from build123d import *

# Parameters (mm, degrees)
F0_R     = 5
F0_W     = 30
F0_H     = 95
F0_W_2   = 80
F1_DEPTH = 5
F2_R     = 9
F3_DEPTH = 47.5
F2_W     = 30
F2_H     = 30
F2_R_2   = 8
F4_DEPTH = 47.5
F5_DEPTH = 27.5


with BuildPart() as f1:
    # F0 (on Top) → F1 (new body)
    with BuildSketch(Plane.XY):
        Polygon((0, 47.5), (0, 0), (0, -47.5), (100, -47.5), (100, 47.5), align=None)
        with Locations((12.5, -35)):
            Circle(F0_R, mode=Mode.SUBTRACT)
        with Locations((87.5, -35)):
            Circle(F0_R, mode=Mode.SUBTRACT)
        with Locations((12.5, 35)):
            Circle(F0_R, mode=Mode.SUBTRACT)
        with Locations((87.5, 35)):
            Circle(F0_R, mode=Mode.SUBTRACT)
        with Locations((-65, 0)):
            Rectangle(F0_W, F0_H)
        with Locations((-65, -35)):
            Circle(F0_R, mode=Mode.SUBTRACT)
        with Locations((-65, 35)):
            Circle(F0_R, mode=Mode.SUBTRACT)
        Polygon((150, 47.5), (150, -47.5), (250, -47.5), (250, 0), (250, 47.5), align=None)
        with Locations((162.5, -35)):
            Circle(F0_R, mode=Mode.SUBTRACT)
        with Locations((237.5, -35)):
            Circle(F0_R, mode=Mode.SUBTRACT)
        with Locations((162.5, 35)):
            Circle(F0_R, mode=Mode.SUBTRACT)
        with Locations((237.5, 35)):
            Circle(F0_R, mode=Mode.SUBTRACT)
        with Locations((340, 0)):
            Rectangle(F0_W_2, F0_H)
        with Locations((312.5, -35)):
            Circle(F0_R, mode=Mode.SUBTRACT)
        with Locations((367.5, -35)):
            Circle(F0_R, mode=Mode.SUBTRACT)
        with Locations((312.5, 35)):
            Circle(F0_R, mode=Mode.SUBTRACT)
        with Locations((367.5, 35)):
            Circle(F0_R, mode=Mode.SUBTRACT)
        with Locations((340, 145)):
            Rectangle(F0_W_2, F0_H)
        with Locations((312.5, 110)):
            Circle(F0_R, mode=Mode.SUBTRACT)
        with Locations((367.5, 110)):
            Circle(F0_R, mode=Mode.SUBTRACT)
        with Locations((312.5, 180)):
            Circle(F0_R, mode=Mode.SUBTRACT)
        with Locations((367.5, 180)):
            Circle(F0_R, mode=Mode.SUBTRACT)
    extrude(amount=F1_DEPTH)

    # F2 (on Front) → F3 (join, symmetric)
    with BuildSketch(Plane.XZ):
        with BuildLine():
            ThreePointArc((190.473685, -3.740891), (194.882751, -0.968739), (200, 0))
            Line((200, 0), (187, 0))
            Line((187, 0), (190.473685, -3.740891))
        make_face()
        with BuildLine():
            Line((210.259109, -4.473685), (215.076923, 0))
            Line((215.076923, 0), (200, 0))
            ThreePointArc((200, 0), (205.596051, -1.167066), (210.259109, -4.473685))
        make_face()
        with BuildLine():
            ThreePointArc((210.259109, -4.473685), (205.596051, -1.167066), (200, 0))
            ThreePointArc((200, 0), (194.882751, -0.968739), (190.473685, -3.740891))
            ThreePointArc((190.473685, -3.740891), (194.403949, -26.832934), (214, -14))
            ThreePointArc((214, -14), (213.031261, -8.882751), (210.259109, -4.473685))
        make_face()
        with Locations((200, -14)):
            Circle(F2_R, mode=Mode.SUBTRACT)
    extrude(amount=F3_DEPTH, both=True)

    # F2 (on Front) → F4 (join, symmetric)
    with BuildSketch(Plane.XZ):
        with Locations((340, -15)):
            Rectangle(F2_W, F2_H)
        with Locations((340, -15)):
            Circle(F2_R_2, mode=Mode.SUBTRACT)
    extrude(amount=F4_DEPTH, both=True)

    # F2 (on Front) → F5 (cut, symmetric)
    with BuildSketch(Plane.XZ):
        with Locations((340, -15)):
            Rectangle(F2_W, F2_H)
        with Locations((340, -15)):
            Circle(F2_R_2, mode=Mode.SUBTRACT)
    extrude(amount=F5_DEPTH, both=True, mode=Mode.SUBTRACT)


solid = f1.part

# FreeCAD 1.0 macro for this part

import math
import FreeCAD as App
import Part
import Sketcher


def add_polygon(sketch, points):
    """Adds a closed chain of lines whose ends are joined by coincident constraints."""
    first, n = sketch.GeometryCount, len(points)
    for a, b in zip(points, points[1:] + points[:1]):
        sketch.addGeometry(Part.LineSegment(App.Vector(*a, 0), App.Vector(*b, 0)), False)
    for i in range(n):
        sketch.addConstraint(Sketcher.Constraint("Coincident", first + i, 2, first + (i + 1) % n, 1))

doc = App.newDocument("Part")
body = doc.addObject("PartDesign::Body", "Body")
body.AllowCompound = True

# Sketch on XY plane
sketch1 = body.newObject("Sketcher::SketchObject", "Sketch")
sketch1.AttachmentSupport = (doc.getObject("XY_Plane"), [""])
sketch1.MapMode = "FlatFace"
add_polygon(sketch1, [(0, 48), (0, -48), (100, -48), (100, 48)])  # lines 0-3
sketch1.addGeometry(Part.Circle(App.Vector(12, -35, 0), App.Vector(0, 0, 1), 5), False)  # 4
sketch1.addGeometry(Part.Circle(App.Vector(88, -35, 0), App.Vector(0, 0, 1), 5), False)  # 5
sketch1.addGeometry(Part.Circle(App.Vector(12, 35, 0), App.Vector(0, 0, 1), 5), False)  # 6
sketch1.addGeometry(Part.Circle(App.Vector(88, 35, 0), App.Vector(0, 0, 1), 5), False)  # 7
add_polygon(sketch1, [(-80, 48), (-80, -48), (-50, -48), (-50, 48)])  # lines 8-11
sketch1.addGeometry(Part.Circle(App.Vector(-65, -35, 0), App.Vector(0, 0, 1), 5), False)  # 12
sketch1.addGeometry(Part.Circle(App.Vector(-65, 35, 0), App.Vector(0, 0, 1), 5), False)  # 13
add_polygon(sketch1, [(150, 48), (150, -48), (250, -48), (250, 48)])  # lines 14-17
sketch1.addGeometry(Part.Circle(App.Vector(162, -35, 0), App.Vector(0, 0, 1), 5), False)  # 18
sketch1.addGeometry(Part.Circle(App.Vector(238, -35, 0), App.Vector(0, 0, 1), 5), False)  # 19
sketch1.addGeometry(Part.Circle(App.Vector(162, 35, 0), App.Vector(0, 0, 1), 5), False)  # 20
sketch1.addGeometry(Part.Circle(App.Vector(238, 35, 0), App.Vector(0, 0, 1), 5), False)  # 21
add_polygon(sketch1, [(300, 48), (300, -48), (380, -48), (380, 48)])  # lines 22-25
sketch1.addGeometry(Part.Circle(App.Vector(312, -35, 0), App.Vector(0, 0, 1), 5), False)  # 26
sketch1.addGeometry(Part.Circle(App.Vector(368, -35, 0), App.Vector(0, 0, 1), 5), False)  # 27
sketch1.addGeometry(Part.Circle(App.Vector(312, 35, 0), App.Vector(0, 0, 1), 5), False)  # 28
sketch1.addGeometry(Part.Circle(App.Vector(368, 35, 0), App.Vector(0, 0, 1), 5), False)  # 29
add_polygon(sketch1, [(300, 192), (300, 98), (380, 98), (380, 192)])  # lines 30-33
sketch1.addGeometry(Part.Circle(App.Vector(312, 110, 0), App.Vector(0, 0, 1), 5), False)  # 34
sketch1.addGeometry(Part.Circle(App.Vector(368, 110, 0), App.Vector(0, 0, 1), 5), False)  # 35
sketch1.addGeometry(Part.Circle(App.Vector(312, 180, 0), App.Vector(0, 0, 1), 5), False)  # 36
sketch1.addGeometry(Part.Circle(App.Vector(368, 180, 0), App.Vector(0, 0, 1), 5), False)  # 37
sketch1.addConstraint([
    Sketcher.Constraint("Vertical", 0),
    Sketcher.Constraint("Horizontal", 1),
    Sketcher.Constraint("Vertical", 2),
    Sketcher.Constraint("Horizontal", 3),
    Sketcher.Constraint("Vertical", 8),
    Sketcher.Constraint("Horizontal", 9),
    Sketcher.Constraint("Vertical", 10),
    Sketcher.Constraint("Horizontal", 11),
    Sketcher.Constraint("Vertical", 14),
    Sketcher.Constraint("Horizontal", 15),
    Sketcher.Constraint("Vertical", 16),
    Sketcher.Constraint("Horizontal", 17),
    Sketcher.Constraint("Vertical", 22),
    Sketcher.Constraint("Horizontal", 23),
    Sketcher.Constraint("Vertical", 24),
    Sketcher.Constraint("Horizontal", 25),
    Sketcher.Constraint("Vertical", 30),
    Sketcher.Constraint("Horizontal", 31),
    Sketcher.Constraint("Vertical", 32),
    Sketcher.Constraint("Horizontal", 33),
    Sketcher.Constraint("Equal", 4, 5),
    Sketcher.Constraint("Equal", 5, 6),
    Sketcher.Constraint("Equal", 6, 7),
    Sketcher.Constraint("Equal", 7, 12),
    Sketcher.Constraint("Equal", 12, 13),
    Sketcher.Constraint("Equal", 13, 18),
    Sketcher.Constraint("Equal", 18, 19),
    Sketcher.Constraint("Equal", 19, 20),
    Sketcher.Constraint("Equal", 20, 21),
    Sketcher.Constraint("Equal", 21, 26),
    Sketcher.Constraint("Equal", 26, 27),
    Sketcher.Constraint("Equal", 27, 28),
    Sketcher.Constraint("Equal", 28, 29),
    Sketcher.Constraint("Equal", 29, 34),
    Sketcher.Constraint("Equal", 34, 35),
    Sketcher.Constraint("Equal", 35, 36),
    Sketcher.Constraint("Equal", 36, 37),
    Sketcher.Constraint("Symmetric", 0, 2, 3, 2, -1, 1),
    Sketcher.Constraint("Symmetric", 4, 3, 6, 3, -1),
    Sketcher.Constraint("Symmetric", 5, 3, 7, 3, -1),
    Sketcher.Constraint("Symmetric", 12, 3, 13, 3, -1),
    Sketcher.Constraint("Symmetric", 18, 3, 20, 3, -1),
    Sketcher.Constraint("Symmetric", 19, 3, 21, 3, -1),
    Sketcher.Constraint("Symmetric", 26, 3, 28, 3, -1),
    Sketcher.Constraint("Symmetric", 27, 3, 29, 3, -1),
    Sketcher.Constraint("Horizontal", 4, 3, 5, 3),
    Sketcher.Constraint("Horizontal", 5, 3, 12, 3),
    Sketcher.Constraint("Horizontal", 12, 3, 18, 3),
    Sketcher.Constraint("Horizontal", 18, 3, 19, 3),
    Sketcher.Constraint("Horizontal", 19, 3, 26, 3),
    Sketcher.Constraint("Horizontal", 26, 3, 27, 3),
    Sketcher.Constraint("Horizontal", 34, 3, 35, 3),
    Sketcher.Constraint("Horizontal", 36, 3, 37, 3),
    Sketcher.Constraint("Horizontal", 1, 2, 8, 2),
    Sketcher.Constraint("Horizontal", 3, 2, 10, 2),
    Sketcher.Constraint("Horizontal", 9, 2, 14, 2),
    Sketcher.Constraint("Horizontal", 11, 2, 16, 2),
    Sketcher.Constraint("Horizontal", 15, 2, 22, 2),
    Sketcher.Constraint("Horizontal", 17, 2, 24, 2),
    Sketcher.Constraint("Vertical", 28, 3, 34, 3),
    Sketcher.Constraint("Vertical", 29, 3, 35, 3),
    Sketcher.Constraint("Vertical", 34, 3, 36, 3),
    Sketcher.Constraint("Vertical", 35, 3, 37, 3),
    Sketcher.Constraint("Vertical", 25, 2, 30, 2),
    Sketcher.Constraint("Vertical", 24, 2, 31, 2),
    Sketcher.Constraint("Equal", 3, 15),
    Sketcher.Constraint("Equal", 24, 30),
    Sketcher.Constraint("Diameter", 4, 10.0),
    Sketcher.Constraint("DistanceX", 1, 1, 1, 2, 100.0),
    Sketcher.Constraint("DistanceX", 9, 1, 9, 2, 30.0),
    Sketcher.Constraint("DistanceX", 23, 1, 23, 2, 80.0),
    Sketcher.Constraint("DistanceY", 0, 2, 0, 1, 95.0),
    Sketcher.Constraint("DistanceY", 4, 3, -1, 1, 35.0),
    Sketcher.Constraint("DistanceX", 12, 3, -1, 1, 65.0),
    Sketcher.Constraint("DistanceY", -1, 1, 34, 3, 110.0),
    Sketcher.Constraint("DistanceY", -1, 1, 36, 3, 180.0),
    Sketcher.Constraint("DistanceX", 8, 2, -1, 1, 80.0),
    Sketcher.Constraint("DistanceX", -1, 1, 14, 2, 150.0),
    Sketcher.Constraint("DistanceX", -1, 1, 22, 2, 300.0),
    Sketcher.Constraint("DistanceX", 4, 3, 5, 3, 75.0),
    Sketcher.Constraint("DistanceX", 5, 3, 18, 3, 75.0),
    Sketcher.Constraint("DistanceX", 18, 3, 19, 3, 75.0),
    Sketcher.Constraint("DistanceX", 19, 3, 26, 3, 75.0),
    Sketcher.Constraint("DistanceX", 26, 3, 27, 3, 55.0),
    Sketcher.Constraint("DistanceY", 25, 2, 30, 2, 50.0),
    Sketcher.Constraint("DistanceX", -1, 1, 4, 3, 12.5),
])
pad1 = body.newObject("PartDesign::Pad", "Pad")
pad1.Profile = sketch1
pad1.Length = 5

# Sketch on XZ plane
sketch2 = body.newObject("Sketcher::SketchObject", "Sketch001")
sketch2.AttachmentSupport = (doc.getObject("XZ_Plane"), [""])
sketch2.MapMode = "FlatFace"
sketch2.addGeometry([
    Part.LineSegment(App.Vector(187, 0, 0), App.Vector(190, -4, 0)),  # 0
    Part.ArcOfCircle(Part.Circle(App.Vector(200, -14, 0), App.Vector(0, 0, 1), 14), math.radians(133), math.radians(360)),  # 1
    Part.ArcOfCircle(Part.Circle(App.Vector(200, -14, 0), App.Vector(0, 0, 1), 14), math.radians(0), math.radians(43)),  # 2
    Part.LineSegment(App.Vector(210, -4, 0), App.Vector(215, 0, 0)),  # 3
    Part.LineSegment(App.Vector(215, 0, 0), App.Vector(187, 0, 0)),  # 4
    Part.Circle(App.Vector(200, -14, 0), App.Vector(0, 0, 1), 9),  # 5
], False)
sketch2.addConstraint([
    Sketcher.Constraint("Coincident", 0, 2, 1, 1),
    Sketcher.Constraint("Tangent", 1, 2, 2, 1),
    Sketcher.Constraint("Coincident", 2, 2, 3, 1),
    Sketcher.Constraint("Coincident", 3, 2, 4, 1),
    Sketcher.Constraint("Coincident", 4, 2, 0, 1),
    Sketcher.Constraint("Horizontal", 4),
    Sketcher.Constraint("Coincident", 5, 3, 1, 3),
    Sketcher.Constraint("Equal", 1, 2),
    Sketcher.Constraint("PointOnObject", 3, 2, -1),
    Sketcher.Constraint("Perpendicular", 0, 3),
    Sketcher.Constraint("Horizontal", 5, 3, 1, 2),
    Sketcher.Constraint("Diameter", 5, 18.0),
    Sketcher.Constraint("Radius", 1, 14.0),
    Sketcher.Constraint("DistanceX", -1, 1, 1, 3, 200.0),
    Sketcher.Constraint("DistanceY", 1, 3, -1, 1, 14.0),
    Sketcher.Constraint("DistanceX", -1, 1, 4, 2, 187.0),
    Sketcher.Constraint("DistanceX", 4, 2, 4, 1, 28.076923),
    Sketcher.Constraint("DistanceY", 0, 2, -1, 1, 3.740891),
])
pad2 = body.newObject("PartDesign::Pad", "Pad001")
pad2.Profile = sketch2
pad2.Length = 95
pad2.Midplane = True

# Sketch on XZ plane
sketch3 = body.newObject("Sketcher::SketchObject", "Sketch002")
sketch3.AttachmentSupport = (doc.getObject("XZ_Plane"), [""])
sketch3.MapMode = "FlatFace"
add_polygon(sketch3, [(325, 0), (325, -30), (355, -30), (355, 0)])  # lines 0-3
sketch3.addGeometry(Part.Circle(App.Vector(340, -15, 0), App.Vector(0, 0, 1), 8), False)  # 4
sketch3.addConstraint([
    Sketcher.Constraint("Vertical", 0),
    Sketcher.Constraint("Horizontal", 1),
    Sketcher.Constraint("Vertical", 2),
    Sketcher.Constraint("Horizontal", 3),
    Sketcher.Constraint("PointOnObject", 2, 2, -1),
    Sketcher.Constraint("Equal", 3, 0),
    Sketcher.Constraint("Diameter", 4, 16.0),
    Sketcher.Constraint("DistanceX", 1, 1, 1, 2, 30.0),
    Sketcher.Constraint("DistanceX", -1, 1, 4, 3, 340.0),
    Sketcher.Constraint("DistanceY", 4, 3, -1, 1, 15.0),
    Sketcher.Constraint("DistanceX", -1, 1, 0, 2, 325.0),
])
pad3 = body.newObject("PartDesign::Pad", "Pad002")
pad3.Profile = sketch3
pad3.Length = 95
pad3.Midplane = True

# Sketch on XZ plane
sketch4 = body.newObject("Sketcher::SketchObject", "Sketch003")
sketch4.AttachmentSupport = (doc.getObject("XZ_Plane"), [""])
sketch4.MapMode = "FlatFace"
add_polygon(sketch4, [(325, 0), (325, -30), (355, -30), (355, 0)])  # lines 0-3
sketch4.addGeometry(Part.Circle(App.Vector(340, -15, 0), App.Vector(0, 0, 1), 8), False)  # 4
sketch4.addConstraint([
    Sketcher.Constraint("Vertical", 0),
    Sketcher.Constraint("Horizontal", 1),
    Sketcher.Constraint("Vertical", 2),
    Sketcher.Constraint("Horizontal", 3),
    Sketcher.Constraint("PointOnObject", 2, 2, -1),
    Sketcher.Constraint("Equal", 3, 0),
    Sketcher.Constraint("Diameter", 4, 16.0),
    Sketcher.Constraint("DistanceX", 1, 1, 1, 2, 30.0),
    Sketcher.Constraint("DistanceX", -1, 1, 4, 3, 340.0),
    Sketcher.Constraint("DistanceY", 4, 3, -1, 1, 15.0),
    Sketcher.Constraint("DistanceX", -1, 1, 0, 2, 325.0),
])
pocket1 = body.newObject("PartDesign::Pocket", "Pocket")
pocket1.Profile = sketch4
pocket1.Length = 55
pocket1.Midplane = True

doc.recompute()
